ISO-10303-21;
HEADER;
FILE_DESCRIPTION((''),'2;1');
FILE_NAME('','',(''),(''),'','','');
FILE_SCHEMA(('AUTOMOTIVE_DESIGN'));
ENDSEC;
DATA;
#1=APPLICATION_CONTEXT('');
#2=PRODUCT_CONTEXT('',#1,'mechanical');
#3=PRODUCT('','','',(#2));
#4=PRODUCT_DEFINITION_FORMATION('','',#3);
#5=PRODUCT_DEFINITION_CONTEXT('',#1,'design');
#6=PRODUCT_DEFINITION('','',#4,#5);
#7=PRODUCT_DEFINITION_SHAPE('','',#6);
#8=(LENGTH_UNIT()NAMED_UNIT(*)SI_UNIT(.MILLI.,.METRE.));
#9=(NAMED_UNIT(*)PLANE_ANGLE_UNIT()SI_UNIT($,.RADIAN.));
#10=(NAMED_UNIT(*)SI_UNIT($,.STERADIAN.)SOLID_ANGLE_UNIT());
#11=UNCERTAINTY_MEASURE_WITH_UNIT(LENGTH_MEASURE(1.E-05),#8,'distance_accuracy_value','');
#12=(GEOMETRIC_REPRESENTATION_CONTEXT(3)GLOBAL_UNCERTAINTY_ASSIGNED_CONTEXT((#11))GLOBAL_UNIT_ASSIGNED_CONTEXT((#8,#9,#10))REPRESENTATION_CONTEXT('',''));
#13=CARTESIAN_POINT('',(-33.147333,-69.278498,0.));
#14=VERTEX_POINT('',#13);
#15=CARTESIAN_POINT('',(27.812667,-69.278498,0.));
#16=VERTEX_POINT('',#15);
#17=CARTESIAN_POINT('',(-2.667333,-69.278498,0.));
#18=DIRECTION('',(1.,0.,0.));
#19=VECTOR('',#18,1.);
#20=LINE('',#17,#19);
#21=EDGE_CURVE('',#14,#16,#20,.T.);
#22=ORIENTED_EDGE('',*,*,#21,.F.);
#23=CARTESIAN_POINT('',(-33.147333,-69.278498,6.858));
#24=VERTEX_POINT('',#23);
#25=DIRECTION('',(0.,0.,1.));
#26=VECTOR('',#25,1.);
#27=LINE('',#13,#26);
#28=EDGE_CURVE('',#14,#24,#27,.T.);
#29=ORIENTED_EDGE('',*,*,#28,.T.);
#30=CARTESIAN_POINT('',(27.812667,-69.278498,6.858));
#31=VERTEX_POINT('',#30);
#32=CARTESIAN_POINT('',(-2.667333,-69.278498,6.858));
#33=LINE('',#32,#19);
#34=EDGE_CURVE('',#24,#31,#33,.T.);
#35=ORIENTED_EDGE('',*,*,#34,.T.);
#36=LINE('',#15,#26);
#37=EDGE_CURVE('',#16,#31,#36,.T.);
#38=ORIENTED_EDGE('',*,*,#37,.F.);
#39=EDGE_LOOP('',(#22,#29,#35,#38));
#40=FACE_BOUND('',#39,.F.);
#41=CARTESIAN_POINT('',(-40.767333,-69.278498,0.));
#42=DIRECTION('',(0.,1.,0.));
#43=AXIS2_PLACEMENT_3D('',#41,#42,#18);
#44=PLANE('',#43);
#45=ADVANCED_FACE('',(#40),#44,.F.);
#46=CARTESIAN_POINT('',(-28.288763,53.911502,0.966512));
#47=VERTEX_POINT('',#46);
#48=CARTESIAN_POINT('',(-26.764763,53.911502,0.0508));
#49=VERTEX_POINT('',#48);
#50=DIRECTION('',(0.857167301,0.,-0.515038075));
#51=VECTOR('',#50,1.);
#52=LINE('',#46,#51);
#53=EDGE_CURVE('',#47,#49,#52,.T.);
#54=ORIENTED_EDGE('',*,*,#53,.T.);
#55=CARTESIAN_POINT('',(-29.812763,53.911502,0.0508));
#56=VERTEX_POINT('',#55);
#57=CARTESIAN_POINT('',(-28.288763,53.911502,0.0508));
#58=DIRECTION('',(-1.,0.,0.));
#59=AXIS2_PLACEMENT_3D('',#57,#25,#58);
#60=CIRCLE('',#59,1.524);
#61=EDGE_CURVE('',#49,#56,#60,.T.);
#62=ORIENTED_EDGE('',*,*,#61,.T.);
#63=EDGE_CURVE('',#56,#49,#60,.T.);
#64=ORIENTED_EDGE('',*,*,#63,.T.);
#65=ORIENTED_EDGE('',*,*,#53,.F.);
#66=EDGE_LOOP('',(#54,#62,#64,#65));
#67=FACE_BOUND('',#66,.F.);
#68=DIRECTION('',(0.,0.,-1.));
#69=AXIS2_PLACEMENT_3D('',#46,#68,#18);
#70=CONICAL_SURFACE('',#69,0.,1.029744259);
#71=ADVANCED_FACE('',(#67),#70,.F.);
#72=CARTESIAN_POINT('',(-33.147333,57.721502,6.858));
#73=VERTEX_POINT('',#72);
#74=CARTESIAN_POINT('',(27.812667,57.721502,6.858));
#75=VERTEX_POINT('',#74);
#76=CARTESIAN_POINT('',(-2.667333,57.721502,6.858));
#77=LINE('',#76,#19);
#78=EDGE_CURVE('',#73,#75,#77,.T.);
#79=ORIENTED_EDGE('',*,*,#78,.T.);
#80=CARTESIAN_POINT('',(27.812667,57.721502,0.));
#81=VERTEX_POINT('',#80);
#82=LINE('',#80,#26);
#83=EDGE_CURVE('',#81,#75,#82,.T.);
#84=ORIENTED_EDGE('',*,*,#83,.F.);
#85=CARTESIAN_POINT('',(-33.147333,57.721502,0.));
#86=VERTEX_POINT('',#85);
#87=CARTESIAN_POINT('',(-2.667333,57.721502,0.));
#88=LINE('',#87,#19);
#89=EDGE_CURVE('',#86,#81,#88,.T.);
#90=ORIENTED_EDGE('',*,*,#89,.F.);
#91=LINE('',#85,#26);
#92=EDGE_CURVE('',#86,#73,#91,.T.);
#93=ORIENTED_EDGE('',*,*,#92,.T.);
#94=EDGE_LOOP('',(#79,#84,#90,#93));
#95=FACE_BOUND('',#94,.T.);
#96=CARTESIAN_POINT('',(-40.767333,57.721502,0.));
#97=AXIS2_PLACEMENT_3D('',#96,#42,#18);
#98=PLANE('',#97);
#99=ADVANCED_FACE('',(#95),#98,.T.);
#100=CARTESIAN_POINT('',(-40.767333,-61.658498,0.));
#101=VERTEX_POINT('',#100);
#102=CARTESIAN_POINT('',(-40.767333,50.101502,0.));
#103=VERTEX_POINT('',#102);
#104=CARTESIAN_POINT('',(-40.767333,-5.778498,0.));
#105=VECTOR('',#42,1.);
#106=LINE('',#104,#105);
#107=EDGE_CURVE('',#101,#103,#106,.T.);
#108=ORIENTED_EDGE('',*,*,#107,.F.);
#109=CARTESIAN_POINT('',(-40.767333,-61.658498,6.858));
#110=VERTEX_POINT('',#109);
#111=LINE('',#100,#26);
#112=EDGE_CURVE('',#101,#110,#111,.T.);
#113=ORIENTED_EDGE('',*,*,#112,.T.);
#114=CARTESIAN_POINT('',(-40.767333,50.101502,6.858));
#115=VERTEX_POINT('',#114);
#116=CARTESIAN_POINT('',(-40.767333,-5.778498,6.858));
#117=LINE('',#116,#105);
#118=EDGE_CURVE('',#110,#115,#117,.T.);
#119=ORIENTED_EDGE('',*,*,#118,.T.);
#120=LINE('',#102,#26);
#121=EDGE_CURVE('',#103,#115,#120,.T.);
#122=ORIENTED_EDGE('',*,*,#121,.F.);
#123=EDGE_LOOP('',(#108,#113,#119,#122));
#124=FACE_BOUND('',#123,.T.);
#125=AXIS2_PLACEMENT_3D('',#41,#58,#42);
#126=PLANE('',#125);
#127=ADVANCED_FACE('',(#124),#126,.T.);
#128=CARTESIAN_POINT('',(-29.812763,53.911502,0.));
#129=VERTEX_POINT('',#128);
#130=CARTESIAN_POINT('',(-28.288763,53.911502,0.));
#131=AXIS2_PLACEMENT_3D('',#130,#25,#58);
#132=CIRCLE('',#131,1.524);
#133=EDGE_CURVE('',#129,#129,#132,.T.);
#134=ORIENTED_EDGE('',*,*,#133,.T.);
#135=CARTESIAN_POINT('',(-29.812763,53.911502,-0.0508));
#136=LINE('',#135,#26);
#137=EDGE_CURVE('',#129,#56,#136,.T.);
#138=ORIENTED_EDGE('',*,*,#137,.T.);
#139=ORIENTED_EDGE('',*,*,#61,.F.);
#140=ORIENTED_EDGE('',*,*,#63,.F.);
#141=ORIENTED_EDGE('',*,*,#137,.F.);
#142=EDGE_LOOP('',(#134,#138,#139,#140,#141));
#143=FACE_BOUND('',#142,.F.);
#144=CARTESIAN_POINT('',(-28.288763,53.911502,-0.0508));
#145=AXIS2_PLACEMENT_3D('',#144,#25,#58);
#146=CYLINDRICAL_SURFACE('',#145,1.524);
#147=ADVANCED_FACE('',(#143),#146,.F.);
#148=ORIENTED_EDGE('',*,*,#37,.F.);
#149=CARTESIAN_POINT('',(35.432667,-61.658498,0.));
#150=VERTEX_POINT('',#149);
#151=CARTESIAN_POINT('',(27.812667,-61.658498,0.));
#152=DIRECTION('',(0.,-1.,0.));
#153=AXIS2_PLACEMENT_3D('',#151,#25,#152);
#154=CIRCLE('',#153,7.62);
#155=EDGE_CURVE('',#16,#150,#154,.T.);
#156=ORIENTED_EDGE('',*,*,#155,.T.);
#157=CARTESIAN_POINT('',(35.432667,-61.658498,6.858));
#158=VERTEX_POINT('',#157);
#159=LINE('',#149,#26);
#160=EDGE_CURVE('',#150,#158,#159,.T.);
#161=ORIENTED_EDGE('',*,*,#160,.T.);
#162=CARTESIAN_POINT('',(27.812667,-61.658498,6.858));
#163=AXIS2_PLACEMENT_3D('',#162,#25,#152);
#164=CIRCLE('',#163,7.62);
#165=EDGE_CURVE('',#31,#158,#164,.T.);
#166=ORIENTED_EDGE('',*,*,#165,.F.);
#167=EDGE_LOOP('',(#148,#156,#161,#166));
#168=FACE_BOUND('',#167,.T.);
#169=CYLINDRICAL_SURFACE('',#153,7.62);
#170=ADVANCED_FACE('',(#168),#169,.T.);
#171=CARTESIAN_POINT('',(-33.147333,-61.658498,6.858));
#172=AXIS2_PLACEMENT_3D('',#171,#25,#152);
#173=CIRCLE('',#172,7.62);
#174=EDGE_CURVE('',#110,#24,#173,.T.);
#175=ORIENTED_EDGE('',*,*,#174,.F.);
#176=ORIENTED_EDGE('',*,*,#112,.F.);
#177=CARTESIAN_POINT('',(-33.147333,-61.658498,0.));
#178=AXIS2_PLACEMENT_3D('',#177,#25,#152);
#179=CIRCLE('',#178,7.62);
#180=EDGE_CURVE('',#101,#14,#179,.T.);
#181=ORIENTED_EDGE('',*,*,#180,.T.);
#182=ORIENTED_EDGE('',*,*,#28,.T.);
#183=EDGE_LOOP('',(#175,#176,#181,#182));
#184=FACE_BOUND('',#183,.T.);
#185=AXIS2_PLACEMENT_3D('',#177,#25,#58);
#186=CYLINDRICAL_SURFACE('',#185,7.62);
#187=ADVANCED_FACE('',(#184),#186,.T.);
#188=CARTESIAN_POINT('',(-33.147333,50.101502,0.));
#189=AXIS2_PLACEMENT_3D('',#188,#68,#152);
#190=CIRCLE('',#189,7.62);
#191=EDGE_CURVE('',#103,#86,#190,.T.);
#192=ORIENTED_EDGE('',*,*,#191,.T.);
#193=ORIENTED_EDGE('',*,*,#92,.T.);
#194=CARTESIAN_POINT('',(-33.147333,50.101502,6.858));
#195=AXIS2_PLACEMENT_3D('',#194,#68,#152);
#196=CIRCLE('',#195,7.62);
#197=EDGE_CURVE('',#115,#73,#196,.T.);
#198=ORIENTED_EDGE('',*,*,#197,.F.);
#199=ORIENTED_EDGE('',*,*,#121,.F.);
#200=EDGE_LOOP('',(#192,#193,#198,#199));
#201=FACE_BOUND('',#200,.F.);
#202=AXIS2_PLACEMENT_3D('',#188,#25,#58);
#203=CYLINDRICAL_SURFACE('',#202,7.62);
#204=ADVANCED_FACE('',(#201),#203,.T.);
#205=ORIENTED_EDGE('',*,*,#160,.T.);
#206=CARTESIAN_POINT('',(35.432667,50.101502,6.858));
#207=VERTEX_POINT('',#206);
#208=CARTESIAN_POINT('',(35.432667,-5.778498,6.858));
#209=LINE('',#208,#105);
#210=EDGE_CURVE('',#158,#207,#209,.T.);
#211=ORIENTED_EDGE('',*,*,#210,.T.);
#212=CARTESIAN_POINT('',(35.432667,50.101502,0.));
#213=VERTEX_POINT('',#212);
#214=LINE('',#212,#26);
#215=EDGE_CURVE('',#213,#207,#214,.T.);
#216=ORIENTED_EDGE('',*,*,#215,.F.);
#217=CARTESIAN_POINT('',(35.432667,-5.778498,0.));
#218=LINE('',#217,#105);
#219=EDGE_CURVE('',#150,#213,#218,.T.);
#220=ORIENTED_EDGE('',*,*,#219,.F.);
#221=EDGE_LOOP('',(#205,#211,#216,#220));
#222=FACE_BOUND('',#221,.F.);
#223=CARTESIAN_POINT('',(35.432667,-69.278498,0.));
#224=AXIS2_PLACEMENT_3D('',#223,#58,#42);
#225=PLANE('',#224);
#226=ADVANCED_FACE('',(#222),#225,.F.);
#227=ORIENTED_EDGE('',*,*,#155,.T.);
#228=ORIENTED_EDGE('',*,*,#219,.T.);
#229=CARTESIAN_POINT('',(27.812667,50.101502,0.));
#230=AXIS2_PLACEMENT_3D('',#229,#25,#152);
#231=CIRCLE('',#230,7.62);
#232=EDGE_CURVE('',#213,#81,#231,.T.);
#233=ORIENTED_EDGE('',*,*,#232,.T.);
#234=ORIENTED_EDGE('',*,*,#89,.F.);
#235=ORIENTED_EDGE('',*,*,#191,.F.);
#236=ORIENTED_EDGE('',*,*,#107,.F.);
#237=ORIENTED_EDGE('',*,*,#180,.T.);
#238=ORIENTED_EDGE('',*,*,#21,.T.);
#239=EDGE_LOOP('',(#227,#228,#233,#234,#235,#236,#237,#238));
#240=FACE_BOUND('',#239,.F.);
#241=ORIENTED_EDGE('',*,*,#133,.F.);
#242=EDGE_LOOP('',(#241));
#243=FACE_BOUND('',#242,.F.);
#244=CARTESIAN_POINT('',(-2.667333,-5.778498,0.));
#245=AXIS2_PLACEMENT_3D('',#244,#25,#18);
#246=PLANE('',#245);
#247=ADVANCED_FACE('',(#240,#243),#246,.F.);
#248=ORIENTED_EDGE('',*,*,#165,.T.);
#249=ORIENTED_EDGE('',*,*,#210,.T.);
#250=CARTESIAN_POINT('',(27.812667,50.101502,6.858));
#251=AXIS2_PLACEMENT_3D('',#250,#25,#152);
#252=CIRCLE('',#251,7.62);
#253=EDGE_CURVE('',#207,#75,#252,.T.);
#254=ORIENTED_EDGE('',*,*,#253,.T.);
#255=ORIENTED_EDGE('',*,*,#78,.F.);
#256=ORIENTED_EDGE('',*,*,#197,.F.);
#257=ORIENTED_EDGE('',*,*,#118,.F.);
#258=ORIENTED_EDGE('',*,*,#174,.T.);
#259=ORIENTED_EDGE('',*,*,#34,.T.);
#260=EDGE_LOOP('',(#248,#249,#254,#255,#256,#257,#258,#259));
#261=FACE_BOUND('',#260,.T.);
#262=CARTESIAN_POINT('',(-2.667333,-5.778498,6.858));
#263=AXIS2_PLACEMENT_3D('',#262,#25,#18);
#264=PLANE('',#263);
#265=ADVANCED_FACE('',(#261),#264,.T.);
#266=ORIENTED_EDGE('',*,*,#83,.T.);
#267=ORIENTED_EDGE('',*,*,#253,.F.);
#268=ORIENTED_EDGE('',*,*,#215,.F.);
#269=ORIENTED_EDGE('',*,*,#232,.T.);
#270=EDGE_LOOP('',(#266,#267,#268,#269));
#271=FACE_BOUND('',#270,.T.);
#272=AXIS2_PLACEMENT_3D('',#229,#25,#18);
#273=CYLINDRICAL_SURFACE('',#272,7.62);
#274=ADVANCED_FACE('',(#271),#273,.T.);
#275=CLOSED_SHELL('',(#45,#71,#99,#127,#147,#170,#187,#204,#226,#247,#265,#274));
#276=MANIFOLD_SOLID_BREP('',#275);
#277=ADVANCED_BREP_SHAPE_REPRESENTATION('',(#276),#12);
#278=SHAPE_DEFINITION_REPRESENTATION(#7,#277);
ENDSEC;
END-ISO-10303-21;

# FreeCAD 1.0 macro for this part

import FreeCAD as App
import Part
import Sketcher
from FreeCAD import Vector
Q = App.Units.Quantity


def edges_at(feature, points):
    """Names of the edges that pass closest to the given points."""
    edges = feature.Shape.Edges
    near = lambda p: min(range(len(edges)), key=lambda i: edges[i].distToShape(Part.Vertex(*p))[0])
    return sorted({f"Edge{near(p) + 1}" for p in points})

doc = App.newDocument("Part")
body = doc.addObject("PartDesign::Body", "Body")

# Sketch on XY plane
sketch1 = doc.addObject("Sketcher::SketchObject", "Sketch")
body.addObject(sketch1)
sketch1.AttachmentSupport = (doc.XY_Plane, [""])
sketch1.MapMode = "FlatFace"
sketch1.addGeometry([
    Part.LineSegment(Vector(-41, 58, 0), Vector(-41, -69, 0)),
    Part.LineSegment(Vector(-41, -69, 0), Vector(35, -69, 0)),
    Part.LineSegment(Vector(35, -69, 0), Vector(35, 58, 0)),
    Part.LineSegment(Vector(35, 58, 0), Vector(-41, 58, 0)),
], False)
sketch1.addConstraint([
    Sketcher.Constraint("Coincident", 0, 2, 1, 1),
    Sketcher.Constraint("Coincident", 1, 2, 2, 1),
    Sketcher.Constraint("Coincident", 2, 2, 3, 1),
    Sketcher.Constraint("Coincident", 3, 2, 0, 1),
    Sketcher.Constraint("Vertical", 0),
    Sketcher.Constraint("Horizontal", 1),
    Sketcher.Constraint("Vertical", 2),
    Sketcher.Constraint("Horizontal", 3),
    Sketcher.Constraint("DistanceX", 1, 1, 1, 2, Q("3 in")),
    Sketcher.Constraint("DistanceY", 0, 2, 0, 1, Q("5 in")),
    Sketcher.Constraint("DistanceY", 0, 2, -1, 1, Q("2.7274999 in")),
    Sketcher.Constraint("DistanceX", 0, 2, -1, 1, Q("40.767333 mm")),
])
pad1 = doc.addObject("PartDesign::Pad", "Pad")
body.addObject(pad1)
pad1.Profile = sketch1
pad1.Length = Q("0.27 in")
doc.recompute()

fillet = doc.addObject("PartDesign::Fillet", "Fillet")
body.addObject(fillet)
fillet.Base = (pad1, edges_at(pad1, [
    (35.433, 57.722, 3.429),
    (-40.767, 57.722, 3.429),
    (-40.767, -69.278, 3.429),
    (35.433, -69.278, 3.429),
]))
fillet.Radius = Q("0.3 in")

# Sketch on XY plane
sketch2 = doc.addObject("Sketcher::SketchObject", "Sketch001")
body.addObject(sketch2)
sketch2.AttachmentSupport = (doc.XY_Plane, [""])
sketch2.MapMode = "FlatFace"
sketch2.addGeometry(Part.Circle(Vector(-28.3, 53.9, 0), Vector(0, 0, 1), 1.5), False)
sketch2.addConstraint([
    Sketcher.Constraint("Diameter", 0, Q("0.12 in")),
    Sketcher.Constraint("DistanceY", -1, 1, 0, 3, Q("2.1225001 in")),
    Sketcher.Constraint("DistanceX", 0, 3, -1, 1, Q("28.288763 mm")),
])
doc.recompute()
hole = doc.addObject("PartDesign::Hole", "Hole")
body.addObject(hole)
hole.Profile = sketch2
hole.ThreadType = "None"
hole.Diameter = Q("0.12 in")
hole.DepthType = "Dimension"
hole.Depth = Q("0.002 in")
hole.DrillPoint = "Angled"
hole.DrillPointAngle = 118
hole.Reversed = True

doc.recompute()
